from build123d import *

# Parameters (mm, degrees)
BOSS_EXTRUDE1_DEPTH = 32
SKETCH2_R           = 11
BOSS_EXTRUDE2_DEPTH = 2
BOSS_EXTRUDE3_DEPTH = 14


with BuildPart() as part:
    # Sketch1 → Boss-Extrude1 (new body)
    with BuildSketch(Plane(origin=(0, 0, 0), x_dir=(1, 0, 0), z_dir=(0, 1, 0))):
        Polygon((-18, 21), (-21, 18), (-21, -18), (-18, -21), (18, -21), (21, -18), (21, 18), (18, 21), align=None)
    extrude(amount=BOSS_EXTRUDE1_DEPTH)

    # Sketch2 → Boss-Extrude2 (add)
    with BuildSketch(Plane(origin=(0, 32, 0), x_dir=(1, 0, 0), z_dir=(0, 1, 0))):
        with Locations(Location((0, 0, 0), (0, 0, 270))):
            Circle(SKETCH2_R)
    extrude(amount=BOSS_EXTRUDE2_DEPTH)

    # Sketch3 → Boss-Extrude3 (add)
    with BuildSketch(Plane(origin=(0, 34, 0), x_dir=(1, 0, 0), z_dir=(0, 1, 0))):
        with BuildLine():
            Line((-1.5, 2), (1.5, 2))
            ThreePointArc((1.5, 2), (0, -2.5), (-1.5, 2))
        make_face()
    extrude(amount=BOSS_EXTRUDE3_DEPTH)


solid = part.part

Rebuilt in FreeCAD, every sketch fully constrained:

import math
import FreeCAD as App
import Part
import Sketcher
from FreeCAD import Vector
Q = App.Units.Quantity

doc = App.newDocument("Part")
body = doc.addObject("PartDesign::Body", "Body")

# Sketch on XZ plane
sketch1 = body.newObject("Sketcher::SketchObject", "Sketch")
sketch1.AttachmentSupport = (doc.getObject("XZ_Plane"), [""])
sketch1.MapMode = "FlatFace"
sketch1.addGeometry([
    Part.LineSegment(Vector(-18, -21, 0), Vector(-21, -18, 0)),  # 0
    Part.LineSegment(Vector(-21, -18, 0), Vector(-21, 18, 0)),  # 1
    Part.LineSegment(Vector(-21, 18, 0), Vector(-18, 21, 0)),  # 2
    Part.LineSegment(Vector(-18, 21, 0), Vector(18, 21, 0)),  # 3
    Part.LineSegment(Vector(18, 21, 0), Vector(21, 18, 0)),  # 4
    Part.LineSegment(Vector(21, 18, 0), Vector(21, -18, 0)),  # 5
    Part.LineSegment(Vector(21, -18, 0), Vector(18, -21, 0)),  # 6
    Part.LineSegment(Vector(18, -21, 0), Vector(-18, -21, 0)),  # 7
], False)
sketch1.addConstraint([
    Sketcher.Constraint("Coincident", 0, 2, 1, 1),
    Sketcher.Constraint("Coincident", 1, 2, 2, 1),
    Sketcher.Constraint("Coincident", 2, 2, 3, 1),
    Sketcher.Constraint("Coincident", 3, 2, 4, 1),
    Sketcher.Constraint("Coincident", 4, 2, 5, 1),
    Sketcher.Constraint("Coincident", 5, 2, 6, 1),
    Sketcher.Constraint("Coincident", 6, 2, 7, 1),
    Sketcher.Constraint("Coincident", 7, 2, 0, 1),
    Sketcher.Constraint("Vertical", 1),
    Sketcher.Constraint("Horizontal", 3),
    Sketcher.Constraint("Vertical", 5),
    Sketcher.Constraint("Horizontal", 7),
    Sketcher.Constraint("Symmetric", 0, 2, 4, 2, -1, 1),
    Sketcher.Constraint("Symmetric", 2, 2, 6, 2, -1, 1),
    Sketcher.Constraint("Perpendicular", 0, 2),
    Sketcher.Constraint("Perpendicular", 2, 4),
    Sketcher.Constraint("Perpendicular", 4, 6),
    Sketcher.Constraint("Horizontal", 1, 2, 4, 2),
    Sketcher.Constraint("Vertical", 3, 2, 6, 2),
    Sketcher.Constraint("Equal", 7, 1),
    Sketcher.Constraint("DistanceX", 3, 1, 3, 2, Q("36 mm")),
    Sketcher.Constraint("DistanceX", 0, 2, -1, 1, Q("21 mm")),
])
pad1 = body.newObject("PartDesign::Pad", "Pad")
pad1.Profile = sketch1
pad1.Length = 32
pad1.Reversed = True

# Sketch on XZ plane
sketch2 = body.newObject("Sketcher::SketchObject", "Sketch001")
sketch2.AttachmentSupport = (doc.getObject("XZ_Plane"), [""])
sketch2.MapMode = "FlatFace"
sketch2.AttachmentOffset = App.Placement(Vector(0, 0, -32), App.Rotation())
sketch2.addGeometry(Part.Circle(Vector(0, 0, 0), Vector(0, 0, 1), 11), False)
sketch2.addConstraint([
    Sketcher.Constraint("Coincident", 0, 3, -1, 1),
    Sketcher.Constraint("Diameter", 0, Q("22 mm")),
])
pad2 = body.newObject("PartDesign::Pad", "Pad001")
pad2.Profile = sketch2
pad2.Length = 2
pad2.Reversed = True

# Sketch on XZ plane
sketch3 = body.newObject("Sketcher::SketchObject", "Sketch002")
sketch3.AttachmentSupport = (doc.getObject("XZ_Plane"), [""])
sketch3.MapMode = "FlatFace"
sketch3.AttachmentOffset = App.Placement(Vector(0, 0, -34), App.Rotation())
sketch3.addGeometry([
    Part.LineSegment(Vector(1.5, -2, 0), Vector(-1.5, -2, 0)),
    Part.ArcOfCircle(Part.Circle(Vector(0, 0, 0), Vector(0, 0, 1), 2.5), math.radians(-53), math.radians(233)),
], False)
sketch3.addConstraint([
    Sketcher.Constraint("Coincident", 0, 1, 1, 1),
    Sketcher.Constraint("Coincident", 1, 2, 0, 2),
    Sketcher.Constraint("Horizontal", 0),
    Sketcher.Constraint("Coincident", 1, 3, -1, 1),
    Sketcher.Constraint("Radius", 1, Q("2.5 mm")),
    Sketcher.Constraint("DistanceX", 0, 2, 0, 1, Q("3 mm")),
])
pad3 = body.newObject("PartDesign::Pad", "Pad002")
pad3.Profile = sketch3
pad3.Length = 14
pad3.Reversed = True

doc.recompute()
